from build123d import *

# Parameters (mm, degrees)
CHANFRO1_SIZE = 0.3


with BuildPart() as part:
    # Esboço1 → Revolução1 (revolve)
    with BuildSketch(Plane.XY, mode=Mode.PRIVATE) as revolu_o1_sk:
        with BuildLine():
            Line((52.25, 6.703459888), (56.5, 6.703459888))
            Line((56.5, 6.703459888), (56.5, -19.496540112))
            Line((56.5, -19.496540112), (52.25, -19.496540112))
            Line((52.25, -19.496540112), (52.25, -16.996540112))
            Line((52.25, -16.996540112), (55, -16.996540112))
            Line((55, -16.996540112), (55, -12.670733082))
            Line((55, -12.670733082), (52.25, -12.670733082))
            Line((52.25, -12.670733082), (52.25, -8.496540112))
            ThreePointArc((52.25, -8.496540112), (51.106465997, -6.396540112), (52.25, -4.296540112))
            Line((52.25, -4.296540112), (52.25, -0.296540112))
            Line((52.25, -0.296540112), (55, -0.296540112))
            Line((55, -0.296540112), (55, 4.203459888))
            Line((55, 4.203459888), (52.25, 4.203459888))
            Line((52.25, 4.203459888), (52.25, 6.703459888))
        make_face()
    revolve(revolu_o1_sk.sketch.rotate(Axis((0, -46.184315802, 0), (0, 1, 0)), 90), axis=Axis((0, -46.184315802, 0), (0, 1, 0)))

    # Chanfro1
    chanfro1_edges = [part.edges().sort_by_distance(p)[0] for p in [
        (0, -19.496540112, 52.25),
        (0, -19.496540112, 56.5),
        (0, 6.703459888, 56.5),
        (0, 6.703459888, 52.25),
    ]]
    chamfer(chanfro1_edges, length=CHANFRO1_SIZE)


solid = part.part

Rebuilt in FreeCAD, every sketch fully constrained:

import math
import FreeCAD as App
import Part
import Sketcher
from FreeCAD import Vector


def edges_at(feature, points):
    """Names of the edges that pass closest to the given points."""
    edges = feature.Shape.Edges
    near = lambda p: min(range(len(edges)), key=lambda i: edges[i].distToShape(Part.Vertex(*p))[0])
    return sorted({f"Edge{near(p) + 1}" for p in points})

doc = App.newDocument("Part")
body = doc.addObject("PartDesign::Body", "Body")

# Sketch on XY plane
sketch1 = doc.addObject("Sketcher::SketchObject", "Sketch")
body.addObject(sketch1)
sketch1.AttachmentSupport = (doc.XY_Plane, [""])
sketch1.MapMode = "FlatFace"
sketch1.addGeometry(Part.LineSegment(Vector(56.5, 6.7, 0), Vector(52.2, 6.7, 0)), False)
sketch1.addGeometry(Part.LineSegment(Vector(52.2, 6.7, 0), Vector(52.2, 4.2, 0)), False)
sketch1.addGeometry(Part.LineSegment(Vector(52.2, 4.2, 0), Vector(55, 4.2, 0)), False)
sketch1.addGeometry(Part.LineSegment(Vector(55, 4.2, 0), Vector(55, -0.3, 0)), False)
sketch1.addGeometry(Part.LineSegment(Vector(55, -0.3, 0), Vector(52.2, -0.3, 0)), False)
sketch1.addGeometry(Part.LineSegment(Vector(52.2, -0.3, 0), Vector(52.2, -4.3, 0)), False)
sketch1.addGeometry(Part.ArcOfCircle(Part.Circle(Vector(53.6, -6.4, 0), Vector(0, 0, 1), 2.5), math.radians(123), math.radians(237)), False)
sketch1.addGeometry(Part.LineSegment(Vector(52.2, -8.5, 0), Vector(52.2, -12.7, 0)), False)
sketch1.addGeometry(Part.LineSegment(Vector(52.2, -12.7, 0), Vector(55, -12.7, 0)), False)
sketch1.addGeometry(Part.LineSegment(Vector(55, -12.7, 0), Vector(55, -17, 0)), False)
sketch1.addGeometry(Part.LineSegment(Vector(55, -17, 0), Vector(52.2, -17, 0)), False)
sketch1.addGeometry(Part.LineSegment(Vector(52.2, -17, 0), Vector(52.2, -19.5, 0)), False)
sketch1.addGeometry(Part.LineSegment(Vector(52.2, -19.5, 0), Vector(56.5, -19.5, 0)), False)
sketch1.addGeometry(Part.LineSegment(Vector(56.5, -19.5, 0), Vector(56.5, 6.7, 0)), False)
sketch1.addConstraint(Sketcher.Constraint("Coincident", 0, 2, 1, 1))
sketch1.addConstraint(Sketcher.Constraint("Coincident", 1, 2, 2, 1))
sketch1.addConstraint(Sketcher.Constraint("Coincident", 2, 2, 3, 1))
sketch1.addConstraint(Sketcher.Constraint("Coincident", 3, 2, 4, 1))
sketch1.addConstraint(Sketcher.Constraint("Coincident", 4, 2, 5, 1))
sketch1.addConstraint(Sketcher.Constraint("Coincident", 5, 2, 6, 1))
sketch1.addConstraint(Sketcher.Constraint("Coincident", 6, 2, 7, 1))
sketch1.addConstraint(Sketcher.Constraint("Coincident", 7, 2, 8, 1))
sketch1.addConstraint(Sketcher.Constraint("Coincident", 8, 2, 9, 1))
sketch1.addConstraint(Sketcher.Constraint("Coincident", 9, 2, 10, 1))
sketch1.addConstraint(Sketcher.Constraint("Coincident", 10, 2, 11, 1))
sketch1.addConstraint(Sketcher.Constraint("Coincident", 11, 2, 12, 1))
sketch1.addConstraint(Sketcher.Constraint("Coincident", 12, 2, 13, 1))
sketch1.addConstraint(Sketcher.Constraint("Coincident", 13, 2, 0, 1))
sketch1.addConstraint(Sketcher.Constraint("Horizontal", 0))
sketch1.addConstraint(Sketcher.Constraint("Vertical", 1))
sketch1.addConstraint(Sketcher.Constraint("Horizontal", 2))
sketch1.addConstraint(Sketcher.Constraint("Vertical", 3))
sketch1.addConstraint(Sketcher.Constraint("Horizontal", 4))
sketch1.addConstraint(Sketcher.Constraint("Vertical", 5))
sketch1.addConstraint(Sketcher.Constraint("Vertical", 7))
sketch1.addConstraint(Sketcher.Constraint("Horizontal", 8))
sketch1.addConstraint(Sketcher.Constraint("Vertical", 9))
sketch1.addConstraint(Sketcher.Constraint("Horizontal", 10))
sketch1.addConstraint(Sketcher.Constraint("Vertical", 11))
sketch1.addConstraint(Sketcher.Constraint("Horizontal", 12))
sketch1.addConstraint(Sketcher.Constraint("Vertical", 13))
sketch1.addConstraint(Sketcher.Constraint("Vertical", 1, 2, 4, 2))
sketch1.addConstraint(Sketcher.Constraint("Vertical", 5, 2, 6, 2))
sketch1.addConstraint(Sketcher.Constraint("Vertical", 3, 2, 8, 2))
sketch1.addConstraint(Sketcher.Constraint("Vertical", 7, 2, 10, 2))
sketch1.addConstraint(Sketcher.Constraint("Equal", 1, 11))
sketch1.addConstraint(Sketcher.Constraint("Radius", 6, 2.5))
sketch1.addConstraint(Sketcher.Constraint("DistanceY", 5, 2, 5, 1, 4.0))
sketch1.addConstraint(Sketcher.Constraint("DistanceY", 1, 2, 1, 1, 2.5))
sketch1.addConstraint(Sketcher.Constraint("DistanceY", 3, 2, 3, 1, 4.5))
sketch1.addConstraint(Sketcher.Constraint("DistanceY", 13, 1, 13, 2, 26.2))
sketch1.addConstraint(Sketcher.Constraint("DistanceX", -1, 1, 2, 2, 55.0))
sketch1.addConstraint(Sketcher.Constraint("DistanceY", 11, 2, 6, 2, 11.0))
sketch1.addConstraint(Sketcher.Constraint("DistanceX", 0, 2, 0, 1, 4.25))
sketch1.addConstraint(Sketcher.Constraint("DistanceX", 2, 1, 2, 2, 2.75))
sketch1.addConstraint(Sketcher.Constraint("DistanceY", 7, 2, 7, 1, 4.174193))
sketch1.addConstraint(Sketcher.Constraint("DistanceY", 6, 3, -1, 1, 6.39654))
revolution = doc.addObject("PartDesign::Revolution", "Revolution")
body.addObject(revolution)
revolution.Profile = sketch1
revolution.ReferenceAxis = (sketch1, ["V_Axis"])
revolution.Angle = 360
doc.recompute()

chamfer = doc.addObject("PartDesign::Chamfer", "Chamfer")
body.addObject(chamfer)
chamfer.Base = (revolution, edges_at(revolution, [
    (0, -19.497, 52.25),
    (0, -19.497, 56.5),
    (0, 6.703, 56.5),
    (0, 6.703, 52.25),
]))
chamfer.Size = 0.3

doc.recompute()
